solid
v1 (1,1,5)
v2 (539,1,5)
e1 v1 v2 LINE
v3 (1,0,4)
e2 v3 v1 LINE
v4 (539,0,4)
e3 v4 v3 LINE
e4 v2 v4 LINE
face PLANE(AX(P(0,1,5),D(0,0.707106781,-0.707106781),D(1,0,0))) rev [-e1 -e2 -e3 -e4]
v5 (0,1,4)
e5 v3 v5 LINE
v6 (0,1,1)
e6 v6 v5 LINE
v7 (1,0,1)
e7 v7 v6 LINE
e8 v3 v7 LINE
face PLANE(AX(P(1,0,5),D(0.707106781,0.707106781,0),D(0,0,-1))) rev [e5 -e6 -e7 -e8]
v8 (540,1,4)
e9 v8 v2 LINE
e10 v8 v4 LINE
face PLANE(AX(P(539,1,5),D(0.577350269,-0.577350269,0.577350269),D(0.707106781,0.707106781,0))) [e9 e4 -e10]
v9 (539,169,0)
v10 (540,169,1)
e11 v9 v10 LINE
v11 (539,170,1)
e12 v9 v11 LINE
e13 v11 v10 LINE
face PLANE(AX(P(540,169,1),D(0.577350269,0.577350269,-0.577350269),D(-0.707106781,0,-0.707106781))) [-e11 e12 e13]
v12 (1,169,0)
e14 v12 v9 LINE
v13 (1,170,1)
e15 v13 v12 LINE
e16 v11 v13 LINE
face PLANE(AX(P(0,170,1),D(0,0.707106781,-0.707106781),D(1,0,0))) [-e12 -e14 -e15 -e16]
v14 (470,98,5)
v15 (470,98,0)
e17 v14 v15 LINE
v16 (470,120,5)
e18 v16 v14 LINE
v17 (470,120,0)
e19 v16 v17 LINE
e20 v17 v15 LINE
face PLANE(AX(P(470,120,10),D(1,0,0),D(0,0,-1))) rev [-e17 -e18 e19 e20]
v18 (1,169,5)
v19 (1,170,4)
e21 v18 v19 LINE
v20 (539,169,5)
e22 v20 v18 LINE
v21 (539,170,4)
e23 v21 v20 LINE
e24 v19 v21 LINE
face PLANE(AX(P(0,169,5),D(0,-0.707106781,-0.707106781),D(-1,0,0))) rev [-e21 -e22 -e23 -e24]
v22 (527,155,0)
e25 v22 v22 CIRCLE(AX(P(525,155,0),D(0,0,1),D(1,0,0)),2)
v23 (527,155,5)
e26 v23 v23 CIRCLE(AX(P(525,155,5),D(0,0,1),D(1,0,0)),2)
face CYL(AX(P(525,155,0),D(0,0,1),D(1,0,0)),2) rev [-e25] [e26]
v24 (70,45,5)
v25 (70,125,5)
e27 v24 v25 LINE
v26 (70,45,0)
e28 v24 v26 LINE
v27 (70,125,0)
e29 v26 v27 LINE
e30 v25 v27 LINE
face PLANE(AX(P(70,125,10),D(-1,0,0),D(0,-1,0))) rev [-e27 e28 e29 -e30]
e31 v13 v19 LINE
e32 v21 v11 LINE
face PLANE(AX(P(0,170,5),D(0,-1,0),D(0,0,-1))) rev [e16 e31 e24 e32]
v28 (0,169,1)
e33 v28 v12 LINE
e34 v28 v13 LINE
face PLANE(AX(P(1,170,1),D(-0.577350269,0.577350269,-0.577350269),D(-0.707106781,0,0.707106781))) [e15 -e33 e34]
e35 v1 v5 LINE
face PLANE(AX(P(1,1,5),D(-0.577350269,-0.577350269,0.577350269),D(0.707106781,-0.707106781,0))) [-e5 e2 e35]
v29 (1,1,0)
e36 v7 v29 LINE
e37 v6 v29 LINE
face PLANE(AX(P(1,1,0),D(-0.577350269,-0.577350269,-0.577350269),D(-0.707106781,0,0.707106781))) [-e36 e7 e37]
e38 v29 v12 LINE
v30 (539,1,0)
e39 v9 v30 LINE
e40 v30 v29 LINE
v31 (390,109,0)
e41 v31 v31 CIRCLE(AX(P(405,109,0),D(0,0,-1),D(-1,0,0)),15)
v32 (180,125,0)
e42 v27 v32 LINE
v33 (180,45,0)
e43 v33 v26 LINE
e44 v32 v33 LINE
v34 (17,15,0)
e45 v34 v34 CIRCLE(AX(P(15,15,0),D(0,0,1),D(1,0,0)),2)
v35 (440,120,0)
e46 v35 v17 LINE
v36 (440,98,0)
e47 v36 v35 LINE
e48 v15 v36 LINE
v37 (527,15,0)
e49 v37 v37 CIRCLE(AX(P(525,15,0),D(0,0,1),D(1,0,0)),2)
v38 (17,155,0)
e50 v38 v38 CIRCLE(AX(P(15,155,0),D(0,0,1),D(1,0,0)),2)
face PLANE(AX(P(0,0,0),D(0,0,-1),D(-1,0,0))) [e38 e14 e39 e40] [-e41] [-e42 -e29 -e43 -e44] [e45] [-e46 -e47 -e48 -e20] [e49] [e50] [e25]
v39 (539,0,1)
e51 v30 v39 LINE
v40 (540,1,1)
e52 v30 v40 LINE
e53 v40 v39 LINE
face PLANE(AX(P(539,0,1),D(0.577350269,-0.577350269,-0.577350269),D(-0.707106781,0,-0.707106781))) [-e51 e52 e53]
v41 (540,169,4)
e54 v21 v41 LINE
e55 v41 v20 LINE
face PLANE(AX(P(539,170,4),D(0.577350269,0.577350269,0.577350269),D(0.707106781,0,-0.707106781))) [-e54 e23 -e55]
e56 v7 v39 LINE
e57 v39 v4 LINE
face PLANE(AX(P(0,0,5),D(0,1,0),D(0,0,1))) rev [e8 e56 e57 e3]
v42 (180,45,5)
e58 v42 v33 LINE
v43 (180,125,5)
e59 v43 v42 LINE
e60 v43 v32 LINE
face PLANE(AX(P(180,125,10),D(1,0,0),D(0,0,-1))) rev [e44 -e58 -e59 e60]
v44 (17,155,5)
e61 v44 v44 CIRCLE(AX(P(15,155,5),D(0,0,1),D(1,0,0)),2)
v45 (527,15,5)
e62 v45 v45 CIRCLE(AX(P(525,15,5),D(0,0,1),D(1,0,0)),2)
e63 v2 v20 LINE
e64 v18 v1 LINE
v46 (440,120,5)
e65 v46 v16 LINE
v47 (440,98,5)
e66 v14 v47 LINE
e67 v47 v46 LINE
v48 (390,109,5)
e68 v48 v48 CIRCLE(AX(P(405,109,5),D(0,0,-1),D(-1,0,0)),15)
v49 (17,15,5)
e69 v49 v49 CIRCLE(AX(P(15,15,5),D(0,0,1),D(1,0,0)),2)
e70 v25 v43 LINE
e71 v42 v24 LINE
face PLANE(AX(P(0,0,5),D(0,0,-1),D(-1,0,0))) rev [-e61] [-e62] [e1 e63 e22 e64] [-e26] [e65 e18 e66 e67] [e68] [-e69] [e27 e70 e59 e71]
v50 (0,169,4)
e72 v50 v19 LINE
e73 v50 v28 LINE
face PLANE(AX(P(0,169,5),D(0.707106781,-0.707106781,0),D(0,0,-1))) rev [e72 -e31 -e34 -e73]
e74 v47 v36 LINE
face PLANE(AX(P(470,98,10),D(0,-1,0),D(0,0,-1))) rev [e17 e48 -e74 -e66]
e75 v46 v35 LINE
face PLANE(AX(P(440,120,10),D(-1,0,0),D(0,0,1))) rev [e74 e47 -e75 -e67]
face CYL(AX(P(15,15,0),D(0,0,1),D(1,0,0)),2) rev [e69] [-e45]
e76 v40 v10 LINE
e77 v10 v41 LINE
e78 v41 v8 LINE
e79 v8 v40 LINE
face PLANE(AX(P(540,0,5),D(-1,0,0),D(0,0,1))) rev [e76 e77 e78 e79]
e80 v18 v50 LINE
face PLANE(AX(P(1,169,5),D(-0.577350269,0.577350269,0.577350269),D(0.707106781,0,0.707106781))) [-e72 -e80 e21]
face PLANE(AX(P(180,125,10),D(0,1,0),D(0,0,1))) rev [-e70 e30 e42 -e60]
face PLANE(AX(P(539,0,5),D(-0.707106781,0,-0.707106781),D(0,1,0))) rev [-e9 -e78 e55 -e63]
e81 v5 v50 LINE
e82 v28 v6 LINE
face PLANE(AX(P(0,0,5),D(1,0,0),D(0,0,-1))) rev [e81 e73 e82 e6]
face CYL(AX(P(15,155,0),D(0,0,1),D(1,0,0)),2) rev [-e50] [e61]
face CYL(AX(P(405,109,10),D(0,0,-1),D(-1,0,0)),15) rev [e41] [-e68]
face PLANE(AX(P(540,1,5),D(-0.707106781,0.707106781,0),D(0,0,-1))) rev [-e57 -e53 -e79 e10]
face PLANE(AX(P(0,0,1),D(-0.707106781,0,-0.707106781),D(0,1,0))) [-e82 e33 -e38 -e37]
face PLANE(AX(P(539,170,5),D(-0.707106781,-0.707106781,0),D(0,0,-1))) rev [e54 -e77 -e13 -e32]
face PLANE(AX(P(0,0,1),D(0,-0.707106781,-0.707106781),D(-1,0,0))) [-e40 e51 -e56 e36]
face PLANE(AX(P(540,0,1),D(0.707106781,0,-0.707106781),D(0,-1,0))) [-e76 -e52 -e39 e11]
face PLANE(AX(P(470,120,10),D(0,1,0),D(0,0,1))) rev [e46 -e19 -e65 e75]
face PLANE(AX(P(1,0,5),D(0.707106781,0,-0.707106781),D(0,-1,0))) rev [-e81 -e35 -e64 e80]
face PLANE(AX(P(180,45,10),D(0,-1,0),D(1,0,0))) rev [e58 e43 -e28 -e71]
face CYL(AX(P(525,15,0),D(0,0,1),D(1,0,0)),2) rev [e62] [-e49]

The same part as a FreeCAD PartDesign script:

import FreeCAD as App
import Part
import Sketcher

V = App.Vector


def add_polygon(sketch, points):
    """Adds a closed chain of lines whose ends are joined by coincident constraints."""
    first, n = sketch.GeometryCount, len(points)
    for a, b in zip(points, points[1:] + points[:1]):
        sketch.addGeometry(Part.LineSegment(App.Vector(*a, 0), App.Vector(*b, 0)), False)
    for i in range(n):
        sketch.addConstraint(Sketcher.Constraint("Coincident", first + i, 2, first + (i + 1) % n, 1))

doc = App.newDocument("Part")
body = doc.addObject("PartDesign::Body", "Body")

# Sketch on XY plane
sketch1 = body.newObject("Sketcher::SketchObject", "Sketch")
sketch1.AttachmentSupport = (doc.getObject("XY_Plane"), [""])
sketch1.MapMode = "FlatFace"
add_polygon(sketch1, [(0, 170), (0, 0), (540, 0), (540, 170)])  # lines 0-3
sketch1.addConstraint([
    Sketcher.Constraint("Vertical", 0),
    Sketcher.Constraint("Horizontal", 1),
    Sketcher.Constraint("Vertical", 2),
    Sketcher.Constraint("Horizontal", 3),
    Sketcher.Constraint("Coincident", 0, 2, -1, 1),
    Sketcher.Constraint("DistanceX", 1, 1, 1, 2, 540.0),
    Sketcher.Constraint("DistanceY", 0, 2, 0, 1, 170.0),
])
pad1 = body.newObject("PartDesign::Pad", "Pad")
pad1.Profile = sketch1
pad1.Length = 5
doc.recompute()

chamfer = body.newObject("PartDesign::Chamfer", "Chamfer")
chamfer.Base = (pad1, ["Edge1"])
chamfer.UseAllEdges = True
chamfer.Size = 1

# Sketch on XY plane
sketch2 = body.newObject("Sketcher::SketchObject", "Sketch001")
sketch2.AttachmentSupport = (doc.getObject("XY_Plane"), [""])
sketch2.MapMode = "FlatFace"
sketch2.AttachmentOffset = App.Placement(V(0, 0, 5), App.Rotation())
sketch2.addGeometry([
    Part.Circle(V(525, 155, 0), V(0, 0, 1), 2),
    Part.Circle(V(525, 15, 0), V(0, 0, 1), 2),
    Part.Circle(V(15, 155, 0), V(0, 0, 1), 2),
    Part.Circle(V(15, 15, 0), V(0, 0, 1), 2),
], False)
sketch2.addConstraint([
    Sketcher.Constraint("Equal", 0, 1),
    Sketcher.Constraint("Equal", 1, 2),
    Sketcher.Constraint("Equal", 2, 3),
    Sketcher.Constraint("Horizontal", 0, 3, 2, 3),
    Sketcher.Constraint("Horizontal", 1, 3, 3, 3),
    Sketcher.Constraint("Vertical", 0, 3, 1, 3),
    Sketcher.Constraint("Vertical", 2, 3, 3, 3),
    Sketcher.Constraint("Diameter", 0, 4.0),
    Sketcher.Constraint("DistanceX", -1, 1, 0, 3, 525.0),
    Sketcher.Constraint("DistanceY", -1, 1, 0, 3, 155.0),
    Sketcher.Constraint("DistanceY", -1, 1, 1, 3, 15.0),
    Sketcher.Constraint("DistanceX", -1, 1, 2, 3, 15.0),
])
pocket1 = body.newObject("PartDesign::Pocket", "Pocket")
pocket1.Profile = sketch2
pocket1.Length = 5

# Sketch on XY plane
sketch3 = body.newObject("Sketcher::SketchObject", "Sketch002")
sketch3.AttachmentSupport = (doc.getObject("XY_Plane"), [""])
sketch3.MapMode = "FlatFace"
sketch3.addGeometry(Part.Circle(V(405, 109, 0), V(0, 0, 1), 15), False)  # 0
add_polygon(sketch3, [(470, 120), (470, 98), (440, 98), (440, 120)])  # lines 1-4
add_polygon(sketch3, [(180, 125), (180, 45), (70, 45), (70, 125)])  # lines 5-8
sketch3.addConstraint([
    Sketcher.Constraint("Vertical", 1),
    Sketcher.Constraint("Horizontal", 2),
    Sketcher.Constraint("Vertical", 3),
    Sketcher.Constraint("Horizontal", 4),
    Sketcher.Constraint("Vertical", 5),
    Sketcher.Constraint("Horizontal", 6),
    Sketcher.Constraint("Vertical", 7),
    Sketcher.Constraint("Horizontal", 8),
    Sketcher.Constraint("Diameter", 0, 30.0),
    Sketcher.Constraint("DistanceX", 2, 2, 2, 1, 30.0),
    Sketcher.Constraint("DistanceX", 6, 2, 6, 1, 110.0),
    Sketcher.Constraint("DistanceY", 1, 2, 1, 1, 22.0),
    Sketcher.Constraint("DistanceY", 5, 2, 5, 1, 80.0),
    Sketcher.Constraint("DistanceX", -1, 1, 0, 3, 405.0),
    Sketcher.Constraint("DistanceY", -1, 1, 0, 3, 109.0),
    Sketcher.Constraint("DistanceX", -1, 1, 1, 2, 470.0),
    Sketcher.Constraint("DistanceY", -1, 1, 1, 2, 98.0),
    Sketcher.Constraint("DistanceX", -1, 1, 5, 2, 180.0),
    Sketcher.Constraint("DistanceY", -1, 1, 5, 2, 45.0),
])
pocket2 = body.newObject("PartDesign::Pocket", "Pocket001")
pocket2.Profile = sketch3
pocket2.Length = 10
pocket2.Reversed = True

doc.recompute()
